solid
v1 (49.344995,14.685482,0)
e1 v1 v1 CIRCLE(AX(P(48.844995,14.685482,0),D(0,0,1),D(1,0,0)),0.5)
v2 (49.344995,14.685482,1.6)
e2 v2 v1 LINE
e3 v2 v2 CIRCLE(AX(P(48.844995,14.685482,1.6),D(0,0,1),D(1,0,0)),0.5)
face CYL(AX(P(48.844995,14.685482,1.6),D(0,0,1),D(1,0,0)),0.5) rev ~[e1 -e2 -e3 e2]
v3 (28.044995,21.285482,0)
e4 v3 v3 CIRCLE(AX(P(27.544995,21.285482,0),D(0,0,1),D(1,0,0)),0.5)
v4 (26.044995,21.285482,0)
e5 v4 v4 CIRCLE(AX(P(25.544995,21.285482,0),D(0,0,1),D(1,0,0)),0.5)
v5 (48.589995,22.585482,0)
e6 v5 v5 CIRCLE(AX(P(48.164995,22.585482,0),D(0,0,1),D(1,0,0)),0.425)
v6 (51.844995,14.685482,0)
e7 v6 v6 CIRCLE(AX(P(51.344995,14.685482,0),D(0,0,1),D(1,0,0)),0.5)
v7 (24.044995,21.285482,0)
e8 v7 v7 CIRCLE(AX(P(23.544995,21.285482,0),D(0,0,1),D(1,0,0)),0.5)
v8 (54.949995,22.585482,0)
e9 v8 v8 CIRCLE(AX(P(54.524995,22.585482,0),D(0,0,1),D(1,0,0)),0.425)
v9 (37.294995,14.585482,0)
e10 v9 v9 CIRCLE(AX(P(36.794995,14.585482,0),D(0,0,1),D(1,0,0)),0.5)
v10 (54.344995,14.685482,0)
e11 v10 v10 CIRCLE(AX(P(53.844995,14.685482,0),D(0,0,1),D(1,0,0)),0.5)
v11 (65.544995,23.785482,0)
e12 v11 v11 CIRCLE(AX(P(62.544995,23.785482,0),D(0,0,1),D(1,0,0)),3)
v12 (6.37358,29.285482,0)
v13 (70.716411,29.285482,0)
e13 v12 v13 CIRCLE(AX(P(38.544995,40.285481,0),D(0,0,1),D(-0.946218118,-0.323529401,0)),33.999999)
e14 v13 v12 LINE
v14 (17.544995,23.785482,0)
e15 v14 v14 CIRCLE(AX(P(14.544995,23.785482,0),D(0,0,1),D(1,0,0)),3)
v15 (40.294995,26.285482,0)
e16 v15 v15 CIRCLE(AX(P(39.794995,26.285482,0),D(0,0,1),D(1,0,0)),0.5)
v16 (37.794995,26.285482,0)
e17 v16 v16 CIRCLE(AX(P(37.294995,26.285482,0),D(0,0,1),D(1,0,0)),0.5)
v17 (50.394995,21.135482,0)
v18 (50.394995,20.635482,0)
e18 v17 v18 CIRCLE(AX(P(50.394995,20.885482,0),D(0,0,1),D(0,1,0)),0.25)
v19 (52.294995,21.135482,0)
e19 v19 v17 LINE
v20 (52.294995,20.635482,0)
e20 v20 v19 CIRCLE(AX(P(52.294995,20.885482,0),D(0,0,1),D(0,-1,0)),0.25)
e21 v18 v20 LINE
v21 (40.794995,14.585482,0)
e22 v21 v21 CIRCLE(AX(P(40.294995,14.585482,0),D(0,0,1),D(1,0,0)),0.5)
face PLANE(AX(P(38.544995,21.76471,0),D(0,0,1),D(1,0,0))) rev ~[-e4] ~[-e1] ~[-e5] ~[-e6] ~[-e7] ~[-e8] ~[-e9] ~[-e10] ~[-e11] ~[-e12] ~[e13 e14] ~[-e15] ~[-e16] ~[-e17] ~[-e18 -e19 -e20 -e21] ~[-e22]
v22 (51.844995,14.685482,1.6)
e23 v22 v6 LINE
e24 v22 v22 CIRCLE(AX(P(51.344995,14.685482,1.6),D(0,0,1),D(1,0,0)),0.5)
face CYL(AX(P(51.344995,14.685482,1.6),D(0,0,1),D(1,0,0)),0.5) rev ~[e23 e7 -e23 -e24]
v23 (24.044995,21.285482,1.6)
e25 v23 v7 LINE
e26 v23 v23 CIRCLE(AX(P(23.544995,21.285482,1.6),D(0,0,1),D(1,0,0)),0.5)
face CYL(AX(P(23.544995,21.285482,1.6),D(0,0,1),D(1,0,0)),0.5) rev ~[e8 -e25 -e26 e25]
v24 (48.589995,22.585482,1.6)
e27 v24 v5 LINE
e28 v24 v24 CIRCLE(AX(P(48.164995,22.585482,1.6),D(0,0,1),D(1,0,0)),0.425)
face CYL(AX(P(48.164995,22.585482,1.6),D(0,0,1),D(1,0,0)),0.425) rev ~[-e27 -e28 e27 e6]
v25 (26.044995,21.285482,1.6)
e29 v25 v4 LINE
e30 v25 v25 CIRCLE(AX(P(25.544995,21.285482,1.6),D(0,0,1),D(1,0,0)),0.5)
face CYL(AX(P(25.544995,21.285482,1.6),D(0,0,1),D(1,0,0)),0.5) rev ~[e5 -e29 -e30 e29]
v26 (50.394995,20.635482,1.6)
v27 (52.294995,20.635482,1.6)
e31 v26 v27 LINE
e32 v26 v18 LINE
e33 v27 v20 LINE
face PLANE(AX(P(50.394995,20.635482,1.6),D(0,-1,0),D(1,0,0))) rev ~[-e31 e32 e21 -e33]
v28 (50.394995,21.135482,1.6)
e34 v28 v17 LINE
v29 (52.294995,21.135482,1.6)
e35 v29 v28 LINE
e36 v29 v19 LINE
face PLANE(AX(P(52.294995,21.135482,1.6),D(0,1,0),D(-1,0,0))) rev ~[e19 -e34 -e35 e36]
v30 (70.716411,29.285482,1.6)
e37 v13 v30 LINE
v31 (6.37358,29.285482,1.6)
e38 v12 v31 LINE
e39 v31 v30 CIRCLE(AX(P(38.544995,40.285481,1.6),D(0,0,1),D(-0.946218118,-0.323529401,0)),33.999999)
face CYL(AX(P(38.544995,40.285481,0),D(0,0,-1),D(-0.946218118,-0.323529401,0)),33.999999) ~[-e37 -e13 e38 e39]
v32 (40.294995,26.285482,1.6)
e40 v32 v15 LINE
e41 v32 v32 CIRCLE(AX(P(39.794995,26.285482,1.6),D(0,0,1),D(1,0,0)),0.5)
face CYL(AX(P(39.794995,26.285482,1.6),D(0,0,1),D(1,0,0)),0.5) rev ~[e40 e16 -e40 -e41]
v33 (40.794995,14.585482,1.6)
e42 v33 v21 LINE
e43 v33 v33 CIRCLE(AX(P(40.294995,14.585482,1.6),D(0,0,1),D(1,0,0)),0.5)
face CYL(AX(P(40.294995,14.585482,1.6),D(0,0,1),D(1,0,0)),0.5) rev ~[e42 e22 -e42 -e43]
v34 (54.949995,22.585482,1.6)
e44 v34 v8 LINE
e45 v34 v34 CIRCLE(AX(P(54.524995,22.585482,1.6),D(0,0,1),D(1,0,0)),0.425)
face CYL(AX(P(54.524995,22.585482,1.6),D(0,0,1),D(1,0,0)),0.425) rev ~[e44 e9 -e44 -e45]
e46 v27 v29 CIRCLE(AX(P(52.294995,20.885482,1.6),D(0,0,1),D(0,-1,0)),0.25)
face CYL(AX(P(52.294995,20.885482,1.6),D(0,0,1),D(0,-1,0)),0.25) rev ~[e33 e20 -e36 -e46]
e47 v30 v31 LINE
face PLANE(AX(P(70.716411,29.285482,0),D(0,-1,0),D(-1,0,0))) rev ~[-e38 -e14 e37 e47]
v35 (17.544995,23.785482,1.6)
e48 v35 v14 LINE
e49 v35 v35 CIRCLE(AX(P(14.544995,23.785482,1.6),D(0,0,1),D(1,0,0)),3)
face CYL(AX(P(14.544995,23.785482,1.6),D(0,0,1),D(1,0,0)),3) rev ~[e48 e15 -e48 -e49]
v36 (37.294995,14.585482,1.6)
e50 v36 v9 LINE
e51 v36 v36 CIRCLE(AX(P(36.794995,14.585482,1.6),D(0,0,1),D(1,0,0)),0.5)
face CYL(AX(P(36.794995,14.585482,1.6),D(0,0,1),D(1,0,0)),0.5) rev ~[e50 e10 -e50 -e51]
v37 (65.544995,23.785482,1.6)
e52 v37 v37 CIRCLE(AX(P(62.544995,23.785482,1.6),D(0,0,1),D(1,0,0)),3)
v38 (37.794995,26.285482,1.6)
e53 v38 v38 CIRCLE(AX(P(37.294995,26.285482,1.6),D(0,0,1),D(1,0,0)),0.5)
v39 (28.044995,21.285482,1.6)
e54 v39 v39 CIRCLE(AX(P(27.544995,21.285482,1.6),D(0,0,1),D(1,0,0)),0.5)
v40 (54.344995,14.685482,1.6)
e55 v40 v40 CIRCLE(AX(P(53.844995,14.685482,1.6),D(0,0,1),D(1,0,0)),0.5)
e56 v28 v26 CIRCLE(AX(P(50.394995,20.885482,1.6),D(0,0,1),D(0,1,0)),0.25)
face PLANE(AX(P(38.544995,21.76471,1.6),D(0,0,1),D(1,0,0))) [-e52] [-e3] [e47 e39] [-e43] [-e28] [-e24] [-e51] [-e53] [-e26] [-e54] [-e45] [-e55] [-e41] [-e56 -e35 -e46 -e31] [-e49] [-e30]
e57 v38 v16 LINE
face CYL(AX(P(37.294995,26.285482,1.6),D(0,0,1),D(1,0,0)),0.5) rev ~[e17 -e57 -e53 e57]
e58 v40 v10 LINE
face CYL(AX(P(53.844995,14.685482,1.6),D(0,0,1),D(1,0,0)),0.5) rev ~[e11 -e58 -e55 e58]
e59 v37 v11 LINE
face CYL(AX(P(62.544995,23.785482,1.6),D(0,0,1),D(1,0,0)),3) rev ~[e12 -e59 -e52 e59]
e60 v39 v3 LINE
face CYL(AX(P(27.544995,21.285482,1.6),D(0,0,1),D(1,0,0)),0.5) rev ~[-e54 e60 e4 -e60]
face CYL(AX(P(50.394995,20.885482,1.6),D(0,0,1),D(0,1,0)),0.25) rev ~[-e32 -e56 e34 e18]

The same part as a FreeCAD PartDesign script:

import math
import FreeCAD as App
import Part
import Sketcher

V = App.Vector

doc = App.newDocument("Part")
body = doc.addObject("PartDesign::Body", "Body")

sketch1 = body.newObject("Sketcher::SketchObject", "Sketch")
sketch1.AttachmentSupport = (doc.getObject("XY_Plane"), [""])
sketch1.MapMode = "FlatFace"
sketch1.addGeometry(Part.LineSegment(V(71, 29, 0), V(6, 29, 0)), False)
sketch1.addGeometry(Part.ArcOfCircle(Part.Circle(V(39, 40, 0), V(0, 0, 1), 34), math.radians(-161), math.radians(-19)), False)
sketch1.addConstraint(Sketcher.Constraint("Coincident", 0, 1, 1, 2))
sketch1.addConstraint(Sketcher.Constraint("Coincident", 1, 1, 0, 2))
sketch1.addConstraint(Sketcher.Constraint("Horizontal", 0))
sketch1.addConstraint(Sketcher.Constraint("Radius", 1, 33.999999))
sketch1.addConstraint(Sketcher.Constraint("DistanceY", 0, 1, 1, 3, 10.999999))
sketch1.addConstraint(Sketcher.Constraint("DistanceY", -1, 1, 1, 3, 40.285481))
sketch1.addConstraint(Sketcher.Constraint("DistanceX", -1, 1, 0, 1, 70.716411))
pad1 = body.newObject("PartDesign::Pad", "Pad")
pad1.Profile = sketch1
pad1.Length = 1.6

sketch2 = body.newObject("Sketcher::SketchObject", "Sketch001")
sketch2.AttachmentSupport = (doc.getObject("XY_Plane"), [""])
sketch2.MapMode = "FlatFace"
sketch2.AttachmentOffset = App.Placement(V(0, 0, 1.6), App.Rotation())
sketch2.addGeometry(Part.Circle(V(14.5, 23.8, 0), V(0, 0, 1), 3), False)
sketch2.addGeometry(Part.Circle(V(62.5, 23.8, 0), V(0, 0, 1), 3), False)
sketch2.addConstraint(Sketcher.Constraint("Equal", 0, 1))
sketch2.addConstraint(Sketcher.Constraint("Horizontal", 0, 3, 1, 3))
sketch2.addConstraint(Sketcher.Constraint("Diameter", 0, 6.0))
sketch2.addConstraint(Sketcher.Constraint("DistanceX", 0, 3, 1, 3, 48.0))
sketch2.addConstraint(Sketcher.Constraint("DistanceY", -1, 1, 0, 3, 23.785482))
sketch2.addConstraint(Sketcher.Constraint("DistanceX", -1, 1, 0, 3, 14.544995))
pocket1 = body.newObject("PartDesign::Pocket", "Pocket")
pocket1.Profile = sketch2
pocket1.Length = 3

sketch3 = body.newObject("Sketcher::SketchObject", "Sketch002")
sketch3.AttachmentSupport = (doc.getObject("XY_Plane"), [""])
sketch3.MapMode = "FlatFace"
sketch3.AttachmentOffset = App.Placement(V(0, 0, 1.6), App.Rotation())
sketch3.addGeometry(Part.Circle(V(48.84, 14.69, 0), V(0, 0, 1), 0.5), False)
sketch3.addGeometry(Part.Circle(V(53.84, 14.69, 0), V(0, 0, 1), 0.5), False)
sketch3.addGeometry(Part.Circle(V(51.34, 14.69, 0), V(0, 0, 1), 0.5), False)
sketch3.addGeometry(Part.Circle(V(37.29, 26.29, 0), V(0, 0, 1), 0.5), False)
sketch3.addGeometry(Part.Circle(V(39.79, 26.29, 0), V(0, 0, 1), 0.5), False)
sketch3.addGeometry(Part.Circle(V(36.79, 14.59, 0), V(0, 0, 1), 0.5), False)
sketch3.addGeometry(Part.Circle(V(40.29, 14.59, 0), V(0, 0, 1), 0.5), False)
sketch3.addGeometry(Part.ArcOfCircle(Part.Circle(V(50.39, 20.89, 0), V(0, 0, 1), 0.25), math.radians(90), math.radians(270)), False)
sketch3.addGeometry(Part.LineSegment(V(50.39, 20.64, 0), V(52.29, 20.64, 0)), False)
sketch3.addGeometry(Part.ArcOfCircle(Part.Circle(V(52.29, 20.89, 0), V(0, 0, 1), 0.25), math.radians(-90), math.radians(90)), False)
sketch3.addGeometry(Part.LineSegment(V(52.29, 21.14, 0), V(50.39, 21.14, 0)), False)
sketch3.addGeometry(Part.Circle(V(48.16, 22.59, 0), V(0, 0, 1), 0.42), False)
sketch3.addGeometry(Part.Circle(V(54.52, 22.59, 0), V(0, 0, 1), 0.42), False)
sketch3.addGeometry(Part.Circle(V(23.54, 21.29, 0), V(0, 0, 1), 0.5), False)
sketch3.addGeometry(Part.Circle(V(25.54, 21.29, 0), V(0, 0, 1), 0.5), False)
sketch3.addGeometry(Part.Circle(V(27.54, 21.29, 0), V(0, 0, 1), 0.5), False)
sketch3.addConstraint(Sketcher.Constraint("Tangent", 7, 2, 8, 1))
sketch3.addConstraint(Sketcher.Constraint("Tangent", 8, 2, 9, 1))
sketch3.addConstraint(Sketcher.Constraint("Tangent", 9, 2, 10, 1))
sketch3.addConstraint(Sketcher.Constraint("Tangent", 10, 2, 7, 1))
sketch3.addConstraint(Sketcher.Constraint("Horizontal", 8))
sketch3.addConstraint(Sketcher.Constraint("Horizontal", 10))
sketch3.addConstraint(Sketcher.Constraint("Equal", 0, 1))
sketch3.addConstraint(Sketcher.Constraint("Equal", 1, 2))
sketch3.addConstraint(Sketcher.Constraint("Equal", 2, 3))
sketch3.addConstraint(Sketcher.Constraint("Equal", 3, 4))
sketch3.addConstraint(Sketcher.Constraint("Equal", 4, 5))
sketch3.addConstraint(Sketcher.Constraint("Equal", 5, 6))
sketch3.addConstraint(Sketcher.Constraint("Equal", 11, 12))
sketch3.addConstraint(Sketcher.Constraint("Equal", 6, 13))
sketch3.addConstraint(Sketcher.Constraint("Equal", 13, 14))
sketch3.addConstraint(Sketcher.Constraint("Equal", 14, 15))
sketch3.addConstraint(Sketcher.Constraint("Horizontal", 0, 3, 1, 3))
sketch3.addConstraint(Sketcher.Constraint("Horizontal", 1, 3, 2, 3))
sketch3.addConstraint(Sketcher.Constraint("Horizontal", 3, 3, 4, 3))
sketch3.addConstraint(Sketcher.Constraint("Horizontal", 5, 3, 6, 3))
sketch3.addConstraint(Sketcher.Constraint("Horizontal", 11, 3, 12, 3))
sketch3.addConstraint(Sketcher.Constraint("Horizontal", 13, 3, 14, 3))
sketch3.addConstraint(Sketcher.Constraint("Horizontal", 14, 3, 15, 3))
sketch3.addConstraint(Sketcher.Constraint("Diameter", 0, 1.0))
sketch3.addConstraint(Sketcher.Constraint("Diameter", 11, 0.85))
sketch3.addConstraint(Sketcher.Constraint("Radius", 7, 0.25))
sketch3.addConstraint(Sketcher.Constraint("DistanceX", 8, 1, 8, 2, 1.9))
sketch3.addConstraint(Sketcher.Constraint("DistanceX", 0, 3, 1, 3, 5.0))
sketch3.addConstraint(Sketcher.Constraint("DistanceX", 5, 3, 4, 3, 3.0))
sketch3.addConstraint(Sketcher.Constraint("DistanceX", 3, 3, 6, 3, 3.0))
sketch3.addConstraint(Sketcher.Constraint("DistanceX", 6, 3, 9, 3, 12.0))
sketch3.addConstraint(Sketcher.Constraint("DistanceY", 13, 3, 3, 3, 5.0))
sketch3.addConstraint(Sketcher.Constraint("DistanceX", 13, 3, 14, 3, 2.0))
sketch3.addConstraint(Sketcher.Constraint("DistanceX", 14, 3, 15, 3, 2.0))
sketch3.addConstraint(Sketcher.Constraint("DistanceX", 0, 3, 2, 3, 2.5))
sketch3.addConstraint(Sketcher.Constraint("DistanceY", 0, 3, 3, 3, 11.6))
sketch3.addConstraint(Sketcher.Constraint("DistanceX", 3, 3, 4, 3, 2.5))
sketch3.addConstraint(Sketcher.Constraint("DistanceY", 5, 3, 3, 3, 11.7))
sketch3.addConstraint(Sketcher.Constraint("DistanceY", 2, 3, 7, 3, 6.2))
sketch3.addConstraint(Sketcher.Constraint("DistanceY", 7, 3, 11, 3, 1.7))
sketch3.addConstraint(Sketcher.Constraint("DistanceX", 3, 3, 0, 3, 11.55))
sketch3.addConstraint(Sketcher.Constraint("DistanceX", 11, 3, 7, 3, 2.23))
sketch3.addConstraint(Sketcher.Constraint("DistanceX", 9, 3, 12, 3, 2.23))
sketch3.addConstraint(Sketcher.Constraint("DistanceX", 13, 3, 3, 3, 13.75))
sketch3.addConstraint(Sketcher.Constraint("DistanceY", -1, 1, 3, 3, 26.285482))
sketch3.addConstraint(Sketcher.Constraint("DistanceX", -1, 1, 0, 3, 48.844995))
pocket2 = body.newObject("PartDesign::Pocket", "Pocket001")
pocket2.Profile = sketch3
pocket2.Length = 4

sketch4 = body.newObject("Sketcher::SketchObject", "Sketch003")
sketch4.AttachmentSupport = (doc.getObject("XY_Plane"), [""])
sketch4.MapMode = "FlatFace"
sketch4.addGeometry(Part.Circle(V(62.5, 23.8, 0), V(0, 0, 1), 2.1), False)
sketch4.addGeometry(Part.Circle(V(14.5, 23.8, 0), V(0, 0, 1), 2.1), False)
sketch4.addConstraint(Sketcher.Constraint("Equal", 0, 1))
sketch4.addConstraint(Sketcher.Constraint("Horizontal", 0, 3, 1, 3))
sketch4.addConstraint(Sketcher.Constraint("Diameter", 0, 4.2))
sketch4.addConstraint(Sketcher.Constraint("DistanceX", 1, 3, 0, 3, 48.0))
sketch4.addConstraint(Sketcher.Constraint("DistanceY", -1, 1, 0, 3, 23.785482))
sketch4.addConstraint(Sketcher.Constraint("DistanceX", -1, 1, 0, 3, 62.544995))
pocket3 = body.newObject("PartDesign::Pocket", "Pocket002")
pocket3.Profile = sketch4
pocket3.Length = 0.2
pocket3.Reversed = True

doc.recompute()
